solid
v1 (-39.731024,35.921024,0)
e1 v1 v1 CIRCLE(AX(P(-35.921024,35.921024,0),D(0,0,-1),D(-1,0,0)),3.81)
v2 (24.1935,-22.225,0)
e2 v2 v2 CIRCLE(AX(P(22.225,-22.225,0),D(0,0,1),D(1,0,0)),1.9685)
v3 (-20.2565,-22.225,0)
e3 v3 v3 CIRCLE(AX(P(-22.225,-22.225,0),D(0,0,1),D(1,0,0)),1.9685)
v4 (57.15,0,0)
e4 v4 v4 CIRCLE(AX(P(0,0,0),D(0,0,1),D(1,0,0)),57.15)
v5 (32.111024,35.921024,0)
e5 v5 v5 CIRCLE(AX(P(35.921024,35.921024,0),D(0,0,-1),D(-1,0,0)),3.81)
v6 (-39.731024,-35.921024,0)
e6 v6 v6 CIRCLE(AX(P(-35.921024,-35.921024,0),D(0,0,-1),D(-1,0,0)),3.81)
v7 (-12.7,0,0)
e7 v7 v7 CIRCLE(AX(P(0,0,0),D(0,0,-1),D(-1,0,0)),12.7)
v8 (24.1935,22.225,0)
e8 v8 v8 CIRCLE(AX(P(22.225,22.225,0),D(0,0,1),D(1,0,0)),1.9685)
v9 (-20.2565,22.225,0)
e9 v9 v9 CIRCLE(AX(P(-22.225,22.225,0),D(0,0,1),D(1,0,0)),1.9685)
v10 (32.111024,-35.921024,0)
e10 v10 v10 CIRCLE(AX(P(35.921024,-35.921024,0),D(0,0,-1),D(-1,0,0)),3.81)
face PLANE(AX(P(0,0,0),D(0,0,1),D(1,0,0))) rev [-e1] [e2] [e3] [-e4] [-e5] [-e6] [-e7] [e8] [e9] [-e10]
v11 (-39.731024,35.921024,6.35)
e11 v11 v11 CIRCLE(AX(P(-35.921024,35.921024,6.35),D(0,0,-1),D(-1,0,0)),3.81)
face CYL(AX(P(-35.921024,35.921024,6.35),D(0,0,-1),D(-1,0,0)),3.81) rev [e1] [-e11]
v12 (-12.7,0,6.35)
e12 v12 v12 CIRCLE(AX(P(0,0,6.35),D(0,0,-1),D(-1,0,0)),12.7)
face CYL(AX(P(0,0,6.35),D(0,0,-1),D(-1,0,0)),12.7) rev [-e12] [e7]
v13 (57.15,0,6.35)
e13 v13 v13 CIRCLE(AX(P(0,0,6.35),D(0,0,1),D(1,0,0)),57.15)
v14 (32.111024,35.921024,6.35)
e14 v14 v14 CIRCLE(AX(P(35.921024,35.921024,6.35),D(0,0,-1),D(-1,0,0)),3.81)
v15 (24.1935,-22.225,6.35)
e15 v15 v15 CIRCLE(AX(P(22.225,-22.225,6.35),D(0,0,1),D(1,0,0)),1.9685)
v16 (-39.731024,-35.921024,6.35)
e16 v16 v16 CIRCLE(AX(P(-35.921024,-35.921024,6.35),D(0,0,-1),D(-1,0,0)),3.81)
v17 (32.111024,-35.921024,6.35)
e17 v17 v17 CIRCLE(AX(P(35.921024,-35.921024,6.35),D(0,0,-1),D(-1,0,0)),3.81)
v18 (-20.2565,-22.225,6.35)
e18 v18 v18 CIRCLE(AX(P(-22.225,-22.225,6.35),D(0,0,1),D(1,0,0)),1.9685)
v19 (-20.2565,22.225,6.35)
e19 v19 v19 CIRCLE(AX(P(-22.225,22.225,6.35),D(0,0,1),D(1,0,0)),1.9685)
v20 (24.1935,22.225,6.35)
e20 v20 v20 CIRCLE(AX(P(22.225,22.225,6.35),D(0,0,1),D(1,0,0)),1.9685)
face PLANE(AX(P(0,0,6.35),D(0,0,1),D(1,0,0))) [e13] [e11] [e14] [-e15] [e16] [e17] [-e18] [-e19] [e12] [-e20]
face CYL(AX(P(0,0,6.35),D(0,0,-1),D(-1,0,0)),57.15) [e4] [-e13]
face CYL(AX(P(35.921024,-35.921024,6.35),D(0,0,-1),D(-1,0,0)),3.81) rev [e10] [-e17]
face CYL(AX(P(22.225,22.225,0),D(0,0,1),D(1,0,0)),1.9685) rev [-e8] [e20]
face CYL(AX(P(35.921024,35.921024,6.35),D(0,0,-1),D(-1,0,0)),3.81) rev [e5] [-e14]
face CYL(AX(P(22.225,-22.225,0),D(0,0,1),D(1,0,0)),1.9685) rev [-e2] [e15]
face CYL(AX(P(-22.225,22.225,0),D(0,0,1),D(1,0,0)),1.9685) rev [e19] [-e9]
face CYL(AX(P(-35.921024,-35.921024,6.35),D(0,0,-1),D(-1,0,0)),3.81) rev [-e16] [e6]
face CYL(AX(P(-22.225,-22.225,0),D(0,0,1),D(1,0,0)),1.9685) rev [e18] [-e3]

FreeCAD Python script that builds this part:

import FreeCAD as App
import Part
import Sketcher

V = App.Vector
Q = App.Units.Quantity

doc = App.newDocument("Part")
body = doc.addObject("PartDesign::Body", "Body")

# Sketch on XY plane
sketch1 = doc.addObject("Sketcher::SketchObject", "Sketch")
body.addObject(sketch1)
sketch1.AttachmentSupport = (doc.XY_Plane, [""])
sketch1.MapMode = "FlatFace"
sketch1.addGeometry(Part.Circle(V(0, 0, 0), V(0, 0, 1), 57), False)
sketch1.addConstraint(Sketcher.Constraint("Coincident", 0, 3, -1, 1))
sketch1.addConstraint(Sketcher.Constraint("Diameter", 0, Q("4.5 in")))
pad1 = doc.addObject("PartDesign::Pad", "Pad")
body.addObject(pad1)
pad1.Profile = sketch1
pad1.Length = Q("0.25 in")

# Sketch on XY plane
sketch2 = doc.addObject("Sketcher::SketchObject", "Sketch001")
body.addObject(sketch2)
sketch2.AttachmentSupport = (doc.XY_Plane, [""])
sketch2.MapMode = "FlatFace"
sketch2.addGeometry(Part.Circle(V(35.9, 35.9, 0), V(0, 0, 1), 3.8), False)
sketch2.addGeometry(Part.Circle(V(-35.9, 35.9, 0), V(0, 0, 1), 3.8), False)
sketch2.addGeometry(Part.Circle(V(-35.9, -35.9, 0), V(0, 0, 1), 3.8), False)
sketch2.addGeometry(Part.Circle(V(35.9, -35.9, 0), V(0, 0, 1), 3.8), False)
sketch2.addGeometry(Part.Circle(V(0, 0, 0), V(0, 0, 1), 12.7), False)
sketch2.addConstraint(Sketcher.Constraint("Coincident", 4, 3, -1, 1))
sketch2.addConstraint(Sketcher.Constraint("Equal", 0, 1))
sketch2.addConstraint(Sketcher.Constraint("Equal", 1, 2))
sketch2.addConstraint(Sketcher.Constraint("Equal", 2, 3))
sketch2.addConstraint(Sketcher.Constraint("Symmetric", 0, 3, 2, 3, -1, 1))
sketch2.addConstraint(Sketcher.Constraint("Symmetric", 1, 3, 3, 3, -1, 1))
sketch2.addConstraint(Sketcher.Constraint("Symmetric", 0, 3, 1, 3, -2))
sketch2.addConstraint(Sketcher.Constraint("Diameter", 4, Q("1 in")))
sketch2.addConstraint(Sketcher.Constraint("Diameter", 0, Q("0.3 in")))
sketch2.addConstraint(Sketcher.Constraint("DistanceX", 1, 3, 0, 3, 71.842049))
sketch2.addConstraint(Sketcher.Constraint("DistanceY", 2, 3, 1, 3, 71.842049))
pocket1 = doc.addObject("PartDesign::Pocket", "Pocket")
body.addObject(pocket1)
pocket1.Profile = sketch2
pocket1.Length = Q("0.25 in")
pocket1.Reversed = True

# Sketch on XY plane
sketch3 = doc.addObject("Sketcher::SketchObject", "Sketch002")
body.addObject(sketch3)
sketch3.AttachmentSupport = (doc.XY_Plane, [""])
sketch3.MapMode = "FlatFace"
sketch3.AttachmentOffset = App.Placement(V(0, 0, 0.25 * 25.4), App.Rotation())
sketch3.addGeometry(Part.Circle(V(-22.2, 22.2, 0), V(0, 0, 1), 2), False)
sketch3.addGeometry(Part.Circle(V(22.2, 22.2, 0), V(0, 0, 1), 2), False)
sketch3.addGeometry(Part.Circle(V(22.2, -22.2, 0), V(0, 0, 1), 2), False)
sketch3.addGeometry(Part.Circle(V(-22.2, -22.2, 0), V(0, 0, 1), 2), False)
sketch3.addConstraint(Sketcher.Constraint("Equal", 0, 1))
sketch3.addConstraint(Sketcher.Constraint("Equal", 1, 2))
sketch3.addConstraint(Sketcher.Constraint("Equal", 2, 3))
sketch3.addConstraint(Sketcher.Constraint("Symmetric", 0, 3, 2, 3, -1, 1))
sketch3.addConstraint(Sketcher.Constraint("Symmetric", 1, 3, 3, 3, -1, 1))
sketch3.addConstraint(Sketcher.Constraint("Symmetric", 0, 3, 1, 3, -2))
sketch3.addConstraint(Sketcher.Constraint("Diameter", 0, Q("0.155 in")))
sketch3.addConstraint(Sketcher.Constraint("DistanceX", 0, 3, 1, 3, Q("1.75 in")))
sketch3.addConstraint(Sketcher.Constraint("DistanceY", 2, 3, 1, 3, Q("1.75 in")))
pocket2 = doc.addObject("PartDesign::Pocket", "Pocket001")
body.addObject(pocket2)
pocket2.Profile = sketch3
pocket2.Length = Q("0.25 in")

doc.recompute()
